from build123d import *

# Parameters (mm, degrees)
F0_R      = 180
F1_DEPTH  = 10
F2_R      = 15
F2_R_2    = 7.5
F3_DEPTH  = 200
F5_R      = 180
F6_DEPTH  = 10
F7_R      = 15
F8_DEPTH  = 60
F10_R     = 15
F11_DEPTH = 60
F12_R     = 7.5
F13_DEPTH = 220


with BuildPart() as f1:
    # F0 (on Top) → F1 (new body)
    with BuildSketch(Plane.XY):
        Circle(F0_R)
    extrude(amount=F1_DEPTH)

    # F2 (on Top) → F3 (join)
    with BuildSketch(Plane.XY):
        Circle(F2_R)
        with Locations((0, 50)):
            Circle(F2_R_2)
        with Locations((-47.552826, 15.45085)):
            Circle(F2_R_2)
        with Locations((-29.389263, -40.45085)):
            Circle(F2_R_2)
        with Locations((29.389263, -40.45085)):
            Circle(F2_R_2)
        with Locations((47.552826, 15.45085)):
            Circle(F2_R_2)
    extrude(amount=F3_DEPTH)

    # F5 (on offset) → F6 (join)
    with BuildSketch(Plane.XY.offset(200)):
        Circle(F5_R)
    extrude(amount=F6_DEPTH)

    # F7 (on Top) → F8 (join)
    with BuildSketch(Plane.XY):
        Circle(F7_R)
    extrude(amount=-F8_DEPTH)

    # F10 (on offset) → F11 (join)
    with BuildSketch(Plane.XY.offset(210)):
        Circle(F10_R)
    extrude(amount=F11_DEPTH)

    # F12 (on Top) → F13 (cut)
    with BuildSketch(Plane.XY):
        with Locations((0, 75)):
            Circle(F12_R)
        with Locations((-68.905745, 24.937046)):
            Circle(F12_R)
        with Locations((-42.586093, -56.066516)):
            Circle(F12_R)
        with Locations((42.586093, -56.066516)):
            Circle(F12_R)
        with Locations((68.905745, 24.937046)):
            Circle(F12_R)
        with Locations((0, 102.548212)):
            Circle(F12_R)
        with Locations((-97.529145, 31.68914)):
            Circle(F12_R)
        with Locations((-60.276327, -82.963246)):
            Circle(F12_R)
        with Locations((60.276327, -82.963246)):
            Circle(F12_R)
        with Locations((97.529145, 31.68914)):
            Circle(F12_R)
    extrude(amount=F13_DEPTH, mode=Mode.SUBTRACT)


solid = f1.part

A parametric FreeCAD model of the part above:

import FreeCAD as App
import Part
import Sketcher

V = App.Vector

doc = App.newDocument("Part")
body = doc.addObject("PartDesign::Body", "Body")

# Sketch on XY plane
sketch1 = body.newObject("Sketcher::SketchObject", "Sketch")
sketch1.AttachmentSupport = (doc.getObject("XY_Plane"), [""])
sketch1.MapMode = "FlatFace"
sketch1.addGeometry(Part.Circle(V(0, 0, 0), V(0, 0, 1), 180), False)
sketch1.addConstraint([
    Sketcher.Constraint("Coincident", 0, 3, -1, 1),
    Sketcher.Constraint("Diameter", 0, 360.0),
])
pad1 = body.newObject("PartDesign::Pad", "Pad")
pad1.Profile = sketch1
pad1.Length = 10

# Sketch on XY plane
sketch2 = body.newObject("Sketcher::SketchObject", "Sketch001")
sketch2.AttachmentSupport = (doc.getObject("XY_Plane"), [""])
sketch2.MapMode = "FlatFace"
sketch2.addGeometry([
    Part.Circle(V(0, 0, 0), V(0, 0, 1), 15),  # 0
    Part.Circle(V(0, 50, 0), V(0, 0, 1), 7.5),  # 1
    Part.Circle(V(-47.552826, 15.45085, 0), V(0, 0, 1), 7.5),  # 2
    Part.Circle(V(-29.389263, -40.45085, 0), V(0, 0, 1), 7.5),  # 3
    Part.Circle(V(29.389263, -40.45085, 0), V(0, 0, 1), 7.5),  # 4
    Part.Circle(V(47.552826, 15.45085, 0), V(0, 0, 1), 7.5),  # 5
], False)
sketch2.addConstraint([
    Sketcher.Constraint("Coincident", 0, 3, -1, 1),
    Sketcher.Constraint("Equal", 1, 2),
    Sketcher.Constraint("Equal", 2, 3),
    Sketcher.Constraint("Equal", 3, 4),
    Sketcher.Constraint("Equal", 4, 5),
    Sketcher.Constraint("Symmetric", 3, 3, 4, 3, -2),
    Sketcher.Constraint("Symmetric", 2, 3, 5, 3, -2),
    Sketcher.Constraint("PointOnObject", 1, 3, -2),
    Sketcher.Constraint("Diameter", 0, 30.0),
    Sketcher.Constraint("Diameter", 1, 15.0),
    Sketcher.Constraint("DistanceY", -1, 1, 1, 3, 50.0),
    Sketcher.Constraint("DistanceY", 3, 3, 2, 3, 55.9017),
    Sketcher.Constraint("DistanceY", -1, 1, 2, 3, 15.45085),
    Sketcher.Constraint("DistanceX", 2, 3, 4, 3, 76.942089),
    Sketcher.Constraint("DistanceX", 2, 3, -1, 1, 47.552826),
])
pad2 = body.newObject("PartDesign::Pad", "Pad001")
pad2.Profile = sketch2
pad2.Length = 200

# Sketch on XY plane
sketch3 = body.newObject("Sketcher::SketchObject", "Sketch002")
sketch3.AttachmentSupport = (doc.getObject("XY_Plane"), [""])
sketch3.MapMode = "FlatFace"
sketch3.AttachmentOffset = App.Placement(V(0, 0, 200), App.Rotation())
sketch3.addGeometry(Part.Circle(V(0, 0, 0), V(0, 0, 1), 180), False)
sketch3.addConstraint([
    Sketcher.Constraint("Coincident", 0, 3, -1, 1),
    Sketcher.Constraint("Diameter", 0, 360.0),
])
pad3 = body.newObject("PartDesign::Pad", "Pad002")
pad3.Profile = sketch3
pad3.Length = 10

# Sketch on XY plane
sketch4 = body.newObject("Sketcher::SketchObject", "Sketch003")
sketch4.AttachmentSupport = (doc.getObject("XY_Plane"), [""])
sketch4.MapMode = "FlatFace"
sketch4.addGeometry(Part.Circle(V(0, 0, 0), V(0, 0, 1), 15), False)
sketch4.addConstraint([
    Sketcher.Constraint("Coincident", 0, 3, -1, 1),
    Sketcher.Constraint("Diameter", 0, 30.0),
])
pad4 = body.newObject("PartDesign::Pad", "Pad003")
pad4.Profile = sketch4
pad4.Length = 60
pad4.Reversed = True

# Sketch on XY plane
sketch5 = body.newObject("Sketcher::SketchObject", "Sketch004")
sketch5.AttachmentSupport = (doc.getObject("XY_Plane"), [""])
sketch5.MapMode = "FlatFace"
sketch5.AttachmentOffset = App.Placement(V(0, 0, 210), App.Rotation())
sketch5.addGeometry(Part.Circle(V(0, 0, 0), V(0, 0, 1), 15), False)
sketch5.addConstraint([
    Sketcher.Constraint("Coincident", 0, 3, -1, 1),
    Sketcher.Constraint("Diameter", 0, 30.0),
])
pad5 = body.newObject("PartDesign::Pad", "Pad004")
pad5.Profile = sketch5
pad5.Length = 60

# Sketch on XY plane
sketch6 = body.newObject("Sketcher::SketchObject", "Sketch005")
sketch6.AttachmentSupport = (doc.getObject("XY_Plane"), [""])
sketch6.MapMode = "FlatFace"
sketch6.addGeometry([
    Part.Circle(V(0, 75, 0), V(0, 0, 1), 7.5),  # 0
    Part.Circle(V(-68.905745, 24.937046, 0), V(0, 0, 1), 7.5),  # 1
    Part.Circle(V(-42.586093, -56.066516, 0), V(0, 0, 1), 7.5),  # 2
    Part.Circle(V(42.586093, -56.066516, 0), V(0, 0, 1), 7.5),  # 3
    Part.Circle(V(68.905745, 24.937046, 0), V(0, 0, 1), 7.5),  # 4
    Part.Circle(V(0, 102.548212, 0), V(0, 0, 1), 7.5),  # 5
    Part.Circle(V(-97.529145, 31.68914, 0), V(0, 0, 1), 7.5),  # 6
    Part.Circle(V(-60.276327, -82.963246, 0), V(0, 0, 1), 7.5),  # 7
    Part.Circle(V(60.276327, -82.963246, 0), V(0, 0, 1), 7.5),  # 8
    Part.Circle(V(97.529145, 31.68914, 0), V(0, 0, 1), 7.5),  # 9
], False)
sketch6.addConstraint([
    Sketcher.Constraint("Equal", 0, 1),
    Sketcher.Constraint("Equal", 1, 2),
    Sketcher.Constraint("Equal", 2, 3),
    Sketcher.Constraint("Equal", 3, 4),
    Sketcher.Constraint("Equal", 4, 5),
    Sketcher.Constraint("Equal", 5, 6),
    Sketcher.Constraint("Equal", 6, 7),
    Sketcher.Constraint("Equal", 7, 8),
    Sketcher.Constraint("Equal", 8, 9),
    Sketcher.Constraint("Symmetric", 2, 3, 3, 3, -2),
    Sketcher.Constraint("Symmetric", 1, 3, 4, 3, -2),
    Sketcher.Constraint("Symmetric", 7, 3, 8, 3, -2),
    Sketcher.Constraint("Symmetric", 6, 3, 9, 3, -2),
    Sketcher.Constraint("PointOnObject", 0, 3, -2),
    Sketcher.Constraint("PointOnObject", 5, 3, -2),
    Sketcher.Constraint("Diameter", 0, 15.0),
    Sketcher.Constraint("DistanceY", -1, 1, 0, 3, 75.0),
    Sketcher.Constraint("DistanceX", 6, 3, 1, 3, 28.6234),
    Sketcher.Constraint("DistanceY", -1, 1, 6, 3, 31.68914),
    Sketcher.Constraint("DistanceX", 1, 3, 2, 3, 26.319652),
    Sketcher.Constraint("DistanceX", 1, 3, 3, 3, 111.491838),
    Sketcher.Constraint("DistanceY", 2, 3, 5, 3, 158.614728),
    Sketcher.Constraint("DistanceY", 7, 3, 2, 3, 26.89673),
    Sketcher.Constraint("DistanceX", 7, 3, 3, 3, 102.86242),
    Sketcher.Constraint("DistanceY", 7, 3, 1, 3, 107.900292),
    Sketcher.Constraint("DistanceY", -1, 1, 1, 3, 24.937046),
])
pocket1 = body.newObject("PartDesign::Pocket", "Pocket")
pocket1.Profile = sketch6
pocket1.Length = 220
pocket1.Reversed = True

doc.recompute()
